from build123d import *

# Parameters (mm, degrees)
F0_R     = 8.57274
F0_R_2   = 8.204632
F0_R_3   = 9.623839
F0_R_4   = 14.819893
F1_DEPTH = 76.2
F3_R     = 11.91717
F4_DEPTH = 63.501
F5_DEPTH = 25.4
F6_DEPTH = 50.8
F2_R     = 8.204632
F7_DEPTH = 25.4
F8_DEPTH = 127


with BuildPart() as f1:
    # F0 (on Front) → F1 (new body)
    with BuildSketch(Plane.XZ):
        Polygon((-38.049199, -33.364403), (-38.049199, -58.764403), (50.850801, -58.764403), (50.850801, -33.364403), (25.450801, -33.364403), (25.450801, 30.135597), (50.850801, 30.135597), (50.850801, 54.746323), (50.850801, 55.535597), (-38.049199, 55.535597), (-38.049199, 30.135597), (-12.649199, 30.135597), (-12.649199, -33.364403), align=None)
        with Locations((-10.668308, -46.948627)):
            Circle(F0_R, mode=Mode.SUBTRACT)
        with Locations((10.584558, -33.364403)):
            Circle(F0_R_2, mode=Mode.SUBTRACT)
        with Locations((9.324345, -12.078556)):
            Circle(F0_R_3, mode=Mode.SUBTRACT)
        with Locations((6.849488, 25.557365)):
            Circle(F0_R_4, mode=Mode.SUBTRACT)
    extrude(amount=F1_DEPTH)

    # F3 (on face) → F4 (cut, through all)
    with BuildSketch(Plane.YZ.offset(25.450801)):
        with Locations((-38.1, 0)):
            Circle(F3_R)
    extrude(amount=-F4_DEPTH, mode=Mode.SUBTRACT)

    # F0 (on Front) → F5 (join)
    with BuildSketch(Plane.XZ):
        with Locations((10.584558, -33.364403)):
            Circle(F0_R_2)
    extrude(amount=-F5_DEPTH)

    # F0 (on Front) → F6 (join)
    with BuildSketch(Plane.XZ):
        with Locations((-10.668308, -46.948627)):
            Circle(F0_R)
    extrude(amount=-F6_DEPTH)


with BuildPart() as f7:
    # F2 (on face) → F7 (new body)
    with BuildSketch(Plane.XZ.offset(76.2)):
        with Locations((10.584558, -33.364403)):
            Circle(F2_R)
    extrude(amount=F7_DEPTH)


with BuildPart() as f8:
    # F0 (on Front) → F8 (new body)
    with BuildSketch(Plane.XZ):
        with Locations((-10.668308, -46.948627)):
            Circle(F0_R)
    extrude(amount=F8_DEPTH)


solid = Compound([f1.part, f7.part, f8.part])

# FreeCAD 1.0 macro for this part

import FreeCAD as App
import Part
import Sketcher

V = App.Vector
Q = App.Units.Quantity

doc = App.newDocument("Part")
body = doc.addObject("PartDesign::Body", "Body")
body.AllowCompound = True

# Sketch on XZ plane
sketch1 = doc.addObject("Sketcher::SketchObject", "Sketch")
body.addObject(sketch1)
sketch1.AttachmentSupport = (doc.XZ_Plane, [""])
sketch1.MapMode = "FlatFace"
sketch1.addGeometry([
    Part.LineSegment(V(-38.049199, -33.364403, 0), V(-38.049199, -58.764403, 0)),  # 0
    Part.LineSegment(V(-38.049199, -58.764403, 0), V(50.850801, -58.764403, 0)),  # 1
    Part.LineSegment(V(50.850801, -58.764403, 0), V(50.850801, -33.364403, 0)),  # 2
    Part.LineSegment(V(50.850801, -33.364403, 0), V(25.450801, -33.364403, 0)),  # 3
    Part.LineSegment(V(25.450801, -33.364403, 0), V(25.450801, 30.135597, 0)),  # 4
    Part.LineSegment(V(25.450801, 30.135597, 0), V(50.850801, 30.135597, 0)),  # 5
    Part.LineSegment(V(50.850801, 30.135597, 0), V(50.850801, 55.535597, 0)),  # 6
    Part.LineSegment(V(50.850801, 55.535597, 0), V(-38.049199, 55.535597, 0)),  # 7
    Part.LineSegment(V(-38.049199, 55.535597, 0), V(-38.049199, 30.135597, 0)),  # 8
    Part.LineSegment(V(-38.049199, 30.135597, 0), V(-12.649199, 30.135597, 0)),  # 9
    Part.LineSegment(V(-12.649199, 30.135597, 0), V(-12.649199, -33.364403, 0)),  # 10
    Part.LineSegment(V(-12.649199, -33.364403, 0), V(-38.049199, -33.364403, 0)),  # 11
    Part.Circle(V(-10.668308, -46.948627, 0), V(0, 0, 1), 8.57274),  # 12
    Part.Circle(V(10.584558, -33.364403, 0), V(0, 0, 1), 8.204632),  # 13
    Part.Circle(V(9.324345, -12.078556, 0), V(0, 0, 1), 9.623839),  # 14
    Part.Circle(V(6.849488, 25.557365, 0), V(0, 0, 1), 14.819893),  # 15
], False)
sketch1.addConstraint([
    Sketcher.Constraint("Coincident", 0, 2, 1, 1),
    Sketcher.Constraint("Coincident", 1, 2, 2, 1),
    Sketcher.Constraint("Coincident", 2, 2, 3, 1),
    Sketcher.Constraint("Coincident", 3, 2, 4, 1),
    Sketcher.Constraint("Coincident", 4, 2, 5, 1),
    Sketcher.Constraint("Coincident", 5, 2, 6, 1),
    Sketcher.Constraint("Coincident", 6, 2, 7, 1),
    Sketcher.Constraint("Coincident", 7, 2, 8, 1),
    Sketcher.Constraint("Coincident", 8, 2, 9, 1),
    Sketcher.Constraint("Coincident", 9, 2, 10, 1),
    Sketcher.Constraint("Coincident", 10, 2, 11, 1),
    Sketcher.Constraint("Coincident", 11, 2, 0, 1),
    Sketcher.Constraint("Vertical", 0),
    Sketcher.Constraint("Horizontal", 1),
    Sketcher.Constraint("Vertical", 2),
    Sketcher.Constraint("Horizontal", 3),
    Sketcher.Constraint("Vertical", 4),
    Sketcher.Constraint("Horizontal", 5),
    Sketcher.Constraint("Vertical", 6),
    Sketcher.Constraint("Horizontal", 7),
    Sketcher.Constraint("Vertical", 8),
    Sketcher.Constraint("Horizontal", 9),
    Sketcher.Constraint("Vertical", 10),
    Sketcher.Constraint("Horizontal", 11),
    Sketcher.Constraint("Horizontal", 13, 3, 2, 2),
    Sketcher.Constraint("Horizontal", 5, 2, 8, 2),
    Sketcher.Constraint("Horizontal", 3, 2, 10, 2),
    Sketcher.Constraint("Vertical", 2, 2, 5, 2),
    Sketcher.Constraint("Vertical", 0, 2, 7, 2),
    Sketcher.Constraint("Equal", 5, 9),
    Sketcher.Constraint("Equal", 11, 0),
    Sketcher.Constraint("Equal", 2, 6),
    Sketcher.Constraint("DistanceX", 3, 2, 3, 1, Q("1 in")),
    Sketcher.Constraint("DistanceX", 1, 1, 1, 2, Q("3.5 in")),
    Sketcher.Constraint("DistanceY", 4, 1, 4, 2, Q("2.5 in")),
    Sketcher.Constraint("Diameter", 12, Q("17.14548 mm")),
    Sketcher.Constraint("Diameter", 14, Q("19.247678 mm")),
    Sketcher.Constraint("DistanceX", 0, 2, -1, 1, Q("1.498 in")),
    Sketcher.Constraint("Diameter", 13, Q("16.409264 mm")),
    Sketcher.Constraint("Diameter", 15, Q("29.639786 mm")),
    Sketcher.Constraint("DistanceX", -1, 1, 14, 3, Q("0.3671002 in")),
    Sketcher.Constraint("DistanceY", 12, 3, 14, 3, Q("34.870071 mm")),
    Sketcher.Constraint("DistanceY", 14, 3, 15, 3, Q("37.635921 mm")),
    Sketcher.Constraint("DistanceX", 15, 3, 13, 3, Q("3.73507 mm")),
    Sketcher.Constraint("DistanceX", 0, 2, 12, 3, Q("27.380891 mm")),
    Sketcher.Constraint("DistanceY", 0, 2, 15, 3, Q("84.321768 mm")),
    Sketcher.Constraint("DistanceY", 12, 3, -1, 1, Q("46.948627 mm")),
    Sketcher.Constraint("DistanceX", -1, 1, 13, 3, Q("10.584558 mm")),
])
pad1 = doc.addObject("PartDesign::Pad", "Pad")
body.addObject(pad1)
pad1.Profile = sketch1
pad1.Length = Q("3 in")

# Sketch on YZ plane
sketch2 = doc.addObject("Sketcher::SketchObject", "Sketch001")
body.addObject(sketch2)
sketch2.AttachmentSupport = (doc.YZ_Plane, [""])
sketch2.MapMode = "FlatFace"
sketch2.AttachmentOffset = App.Placement(V(0, 0, 1.002 * 25.4), App.Rotation())
sketch2.addGeometry(Part.Circle(V(-38.1, 0, 0), V(0, 0, 1), 11.91717), False)
sketch2.addConstraint([
    Sketcher.Constraint("PointOnObject", 0, 3, -1),
    Sketcher.Constraint("DistanceX", 0, 3, -1, 1, Q("1.5 in")),
    Sketcher.Constraint("Diameter", 0, Q("23.83434 mm")),
])
pocket1 = doc.addObject("PartDesign::Pocket", "Pocket")
body.addObject(pocket1)
pocket1.Profile = sketch2
pocket1.Type = "ThroughAll"

# Sketch on XZ plane
sketch3 = doc.addObject("Sketcher::SketchObject", "Sketch002")
body.addObject(sketch3)
sketch3.AttachmentSupport = (doc.XZ_Plane, [""])
sketch3.MapMode = "FlatFace"
sketch3.addGeometry(Part.Circle(V(10.584558, -33.364403, 0), V(0, 0, 1), 8.204632), False)
sketch3.addConstraint([
    Sketcher.Constraint("Diameter", 0, Q("16.409264 mm")),
    Sketcher.Constraint("DistanceX", -1, 1, 0, 3, Q("10.584558 mm")),
    Sketcher.Constraint("DistanceY", 0, 3, -1, 1, Q("33.364403 mm")),
])
pad2 = doc.addObject("PartDesign::Pad", "Pad001")
body.addObject(pad2)
pad2.Profile = sketch3
pad2.Length = Q("1 in")
pad2.Reversed = True

# Sketch on XZ plane
sketch4 = doc.addObject("Sketcher::SketchObject", "Sketch003")
body.addObject(sketch4)
sketch4.AttachmentSupport = (doc.XZ_Plane, [""])
sketch4.MapMode = "FlatFace"
sketch4.addGeometry(Part.Circle(V(-10.668308, -46.948627, 0), V(0, 0, 1), 8.57274), False)
sketch4.addConstraint([
    Sketcher.Constraint("Diameter", 0, Q("17.14548 mm")),
    Sketcher.Constraint("DistanceX", 0, 3, -1, 1, Q("10.668308 mm")),
    Sketcher.Constraint("DistanceY", 0, 3, -1, 1, Q("46.948627 mm")),
])
pad3 = doc.addObject("PartDesign::Pad", "Pad002")
body.addObject(pad3)
pad3.Profile = sketch4
pad3.Length = Q("2 in")
pad3.Reversed = True
body2 = doc.addObject("PartDesign::Body", "Body001")

# Sketch on XZ plane
sketch5 = doc.addObject("Sketcher::SketchObject", "Sketch004")
body2.addObject(sketch5)
sketch5.AttachmentSupport = (doc.getObject("XZ_Plane001"), [""])
sketch5.MapMode = "FlatFace"
sketch5.AttachmentOffset = App.Placement(V(0, 0, 3 * 25.4), App.Rotation())
sketch5.addGeometry(Part.Circle(V(10.584558, -33.364403, 0), V(0, 0, 1), 8.204632), False)
sketch5.addConstraint([
    Sketcher.Constraint("Diameter", 0, Q("16.409264 mm")),
    Sketcher.Constraint("DistanceX", -1, 1, 0, 3, Q("10.584558 mm")),
    Sketcher.Constraint("DistanceY", 0, 3, -1, 1, Q("33.364403 mm")),
])
pad4 = doc.addObject("PartDesign::Pad", "Pad003")
body2.addObject(pad4)
pad4.Profile = sketch5
pad4.Length = Q("1 in")
body3 = doc.addObject("PartDesign::Body", "Body002")

# Sketch on XZ plane
sketch6 = doc.addObject("Sketcher::SketchObject", "Sketch005")
body3.addObject(sketch6)
sketch6.AttachmentSupport = (doc.getObject("XZ_Plane002"), [""])
sketch6.MapMode = "FlatFace"
sketch6.addGeometry(Part.Circle(V(-10.668308, -46.948627, 0), V(0, 0, 1), 8.57274), False)
sketch6.addConstraint([
    Sketcher.Constraint("Diameter", 0, Q("17.14548 mm")),
    Sketcher.Constraint("DistanceX", 0, 3, -1, 1, Q("10.668308 mm")),
    Sketcher.Constraint("DistanceY", 0, 3, -1, 1, Q("46.948627 mm")),
])
pad5 = doc.addObject("PartDesign::Pad", "Pad004")
body3.addObject(pad5)
pad5.Profile = sketch6
pad5.Length = Q("5 in")

doc.recompute()
